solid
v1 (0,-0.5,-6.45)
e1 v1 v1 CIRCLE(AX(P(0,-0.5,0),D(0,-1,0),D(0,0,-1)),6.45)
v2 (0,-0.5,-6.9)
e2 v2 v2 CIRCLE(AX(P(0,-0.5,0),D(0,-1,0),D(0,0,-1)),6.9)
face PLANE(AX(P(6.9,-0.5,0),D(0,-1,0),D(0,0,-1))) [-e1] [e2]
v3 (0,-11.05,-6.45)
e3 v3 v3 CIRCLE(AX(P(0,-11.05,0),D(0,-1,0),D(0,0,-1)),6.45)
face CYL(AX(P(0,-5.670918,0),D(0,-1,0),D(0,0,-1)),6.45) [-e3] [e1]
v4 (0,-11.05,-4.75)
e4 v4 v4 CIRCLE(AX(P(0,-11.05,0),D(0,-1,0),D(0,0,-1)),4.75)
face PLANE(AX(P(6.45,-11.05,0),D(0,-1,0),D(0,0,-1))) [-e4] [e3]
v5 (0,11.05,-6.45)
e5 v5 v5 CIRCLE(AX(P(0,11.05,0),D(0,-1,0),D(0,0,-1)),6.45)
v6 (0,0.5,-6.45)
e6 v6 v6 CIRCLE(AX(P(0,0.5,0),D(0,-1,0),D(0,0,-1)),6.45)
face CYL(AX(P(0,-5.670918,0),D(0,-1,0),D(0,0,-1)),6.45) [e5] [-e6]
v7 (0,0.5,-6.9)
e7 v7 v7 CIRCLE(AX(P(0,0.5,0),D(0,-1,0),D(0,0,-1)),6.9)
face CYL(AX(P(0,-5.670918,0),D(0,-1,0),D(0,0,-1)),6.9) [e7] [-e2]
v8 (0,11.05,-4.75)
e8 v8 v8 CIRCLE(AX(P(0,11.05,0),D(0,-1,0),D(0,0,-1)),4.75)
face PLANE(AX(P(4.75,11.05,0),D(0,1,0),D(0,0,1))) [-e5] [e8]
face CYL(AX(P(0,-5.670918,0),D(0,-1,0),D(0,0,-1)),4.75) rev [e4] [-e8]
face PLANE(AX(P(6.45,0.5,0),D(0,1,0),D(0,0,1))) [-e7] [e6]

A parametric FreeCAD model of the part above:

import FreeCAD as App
import Part
import Sketcher


def add_polygon(sketch, points):
    """Adds a closed chain of lines whose ends are joined by coincident constraints."""
    first, n = sketch.GeometryCount, len(points)
    for a, b in zip(points, points[1:] + points[:1]):
        sketch.addGeometry(Part.LineSegment(App.Vector(*a, 0), App.Vector(*b, 0)), False)
    for i in range(n):
        sketch.addConstraint(Sketcher.Constraint("Coincident", first + i, 2, first + (i + 1) % n, 1))

doc = App.newDocument("Part")
params = doc.addObject("Spreadsheet::Sheet", "Params")
for row, (alias, value) in enumerate([
    ("sketch1_height", "1 mm"),
    ("sketch1_width", "1.7 mm"),
    ("sketch1_height2", "22.1 mm"),
    ("sketch1_width2", "0.45 mm"),
    ("revolution_angle", "360 deg"),
], start=1):
    params.set(f"A{row}", alias)
    params.set(f"B{row}", "=" + value)
    params.setAlias(f"B{row}", alias)

body = doc.addObject("PartDesign::Body", "Body")

sketch1 = doc.addObject("Sketcher::SketchObject", "Sketch")
body.addObject(sketch1)
sketch1.AttachmentSupport = (doc.XY_Plane, [""])
sketch1.MapMode = "FlatFace"
add_polygon(sketch1, [(4.75, 11.05), (4.75, -11.05), (6.45, -11.05), (6.45, -0.5), (6.9, -0.5), (6.9, 0.5), (6.45, 0.5), (6.45, 11.05)])
sketch1.addConstraint([
    Sketcher.Constraint("Vertical", 0),
    Sketcher.Constraint("Horizontal", 1),
    Sketcher.Constraint("Vertical", 2),
    Sketcher.Constraint("Horizontal", 3),
    Sketcher.Constraint("Vertical", 4),
    Sketcher.Constraint("Horizontal", 5),
    Sketcher.Constraint("Vertical", 6),
    Sketcher.Constraint("Horizontal", 7),
    Sketcher.Constraint("Symmetric", 2, 2, 5, 2, -1),
    Sketcher.Constraint("Equal", 2, 6),
    Sketcher.Constraint("DistanceY", 4, 1, 4, 2, 1.0),
    Sketcher.Constraint("DistanceX", 1, 1, 1, 2, 1.7),
    Sketcher.Constraint("DistanceY", 0, 2, 0, 1, 22.1),
    Sketcher.Constraint("DistanceX", 3, 1, 3, 2, 0.45),
    Sketcher.Constraint("DistanceX", -1, 1, 3, 2, 6.9),
])
sketch1.setExpression("Constraints[18]", "Params.sketch1_height")
sketch1.setExpression("Constraints[19]", "Params.sketch1_width")
sketch1.setExpression("Constraints[20]", "Params.sketch1_height2")
sketch1.setExpression("Constraints[21]", "Params.sketch1_width2")
revolution = doc.addObject("PartDesign::Revolution", "Revolution")
body.addObject(revolution)
revolution.Profile = sketch1
revolution.ReferenceAxis = (sketch1, ["V_Axis"])
revolution.setExpression("Angle", "Params.revolution_angle")

doc.recompute()
